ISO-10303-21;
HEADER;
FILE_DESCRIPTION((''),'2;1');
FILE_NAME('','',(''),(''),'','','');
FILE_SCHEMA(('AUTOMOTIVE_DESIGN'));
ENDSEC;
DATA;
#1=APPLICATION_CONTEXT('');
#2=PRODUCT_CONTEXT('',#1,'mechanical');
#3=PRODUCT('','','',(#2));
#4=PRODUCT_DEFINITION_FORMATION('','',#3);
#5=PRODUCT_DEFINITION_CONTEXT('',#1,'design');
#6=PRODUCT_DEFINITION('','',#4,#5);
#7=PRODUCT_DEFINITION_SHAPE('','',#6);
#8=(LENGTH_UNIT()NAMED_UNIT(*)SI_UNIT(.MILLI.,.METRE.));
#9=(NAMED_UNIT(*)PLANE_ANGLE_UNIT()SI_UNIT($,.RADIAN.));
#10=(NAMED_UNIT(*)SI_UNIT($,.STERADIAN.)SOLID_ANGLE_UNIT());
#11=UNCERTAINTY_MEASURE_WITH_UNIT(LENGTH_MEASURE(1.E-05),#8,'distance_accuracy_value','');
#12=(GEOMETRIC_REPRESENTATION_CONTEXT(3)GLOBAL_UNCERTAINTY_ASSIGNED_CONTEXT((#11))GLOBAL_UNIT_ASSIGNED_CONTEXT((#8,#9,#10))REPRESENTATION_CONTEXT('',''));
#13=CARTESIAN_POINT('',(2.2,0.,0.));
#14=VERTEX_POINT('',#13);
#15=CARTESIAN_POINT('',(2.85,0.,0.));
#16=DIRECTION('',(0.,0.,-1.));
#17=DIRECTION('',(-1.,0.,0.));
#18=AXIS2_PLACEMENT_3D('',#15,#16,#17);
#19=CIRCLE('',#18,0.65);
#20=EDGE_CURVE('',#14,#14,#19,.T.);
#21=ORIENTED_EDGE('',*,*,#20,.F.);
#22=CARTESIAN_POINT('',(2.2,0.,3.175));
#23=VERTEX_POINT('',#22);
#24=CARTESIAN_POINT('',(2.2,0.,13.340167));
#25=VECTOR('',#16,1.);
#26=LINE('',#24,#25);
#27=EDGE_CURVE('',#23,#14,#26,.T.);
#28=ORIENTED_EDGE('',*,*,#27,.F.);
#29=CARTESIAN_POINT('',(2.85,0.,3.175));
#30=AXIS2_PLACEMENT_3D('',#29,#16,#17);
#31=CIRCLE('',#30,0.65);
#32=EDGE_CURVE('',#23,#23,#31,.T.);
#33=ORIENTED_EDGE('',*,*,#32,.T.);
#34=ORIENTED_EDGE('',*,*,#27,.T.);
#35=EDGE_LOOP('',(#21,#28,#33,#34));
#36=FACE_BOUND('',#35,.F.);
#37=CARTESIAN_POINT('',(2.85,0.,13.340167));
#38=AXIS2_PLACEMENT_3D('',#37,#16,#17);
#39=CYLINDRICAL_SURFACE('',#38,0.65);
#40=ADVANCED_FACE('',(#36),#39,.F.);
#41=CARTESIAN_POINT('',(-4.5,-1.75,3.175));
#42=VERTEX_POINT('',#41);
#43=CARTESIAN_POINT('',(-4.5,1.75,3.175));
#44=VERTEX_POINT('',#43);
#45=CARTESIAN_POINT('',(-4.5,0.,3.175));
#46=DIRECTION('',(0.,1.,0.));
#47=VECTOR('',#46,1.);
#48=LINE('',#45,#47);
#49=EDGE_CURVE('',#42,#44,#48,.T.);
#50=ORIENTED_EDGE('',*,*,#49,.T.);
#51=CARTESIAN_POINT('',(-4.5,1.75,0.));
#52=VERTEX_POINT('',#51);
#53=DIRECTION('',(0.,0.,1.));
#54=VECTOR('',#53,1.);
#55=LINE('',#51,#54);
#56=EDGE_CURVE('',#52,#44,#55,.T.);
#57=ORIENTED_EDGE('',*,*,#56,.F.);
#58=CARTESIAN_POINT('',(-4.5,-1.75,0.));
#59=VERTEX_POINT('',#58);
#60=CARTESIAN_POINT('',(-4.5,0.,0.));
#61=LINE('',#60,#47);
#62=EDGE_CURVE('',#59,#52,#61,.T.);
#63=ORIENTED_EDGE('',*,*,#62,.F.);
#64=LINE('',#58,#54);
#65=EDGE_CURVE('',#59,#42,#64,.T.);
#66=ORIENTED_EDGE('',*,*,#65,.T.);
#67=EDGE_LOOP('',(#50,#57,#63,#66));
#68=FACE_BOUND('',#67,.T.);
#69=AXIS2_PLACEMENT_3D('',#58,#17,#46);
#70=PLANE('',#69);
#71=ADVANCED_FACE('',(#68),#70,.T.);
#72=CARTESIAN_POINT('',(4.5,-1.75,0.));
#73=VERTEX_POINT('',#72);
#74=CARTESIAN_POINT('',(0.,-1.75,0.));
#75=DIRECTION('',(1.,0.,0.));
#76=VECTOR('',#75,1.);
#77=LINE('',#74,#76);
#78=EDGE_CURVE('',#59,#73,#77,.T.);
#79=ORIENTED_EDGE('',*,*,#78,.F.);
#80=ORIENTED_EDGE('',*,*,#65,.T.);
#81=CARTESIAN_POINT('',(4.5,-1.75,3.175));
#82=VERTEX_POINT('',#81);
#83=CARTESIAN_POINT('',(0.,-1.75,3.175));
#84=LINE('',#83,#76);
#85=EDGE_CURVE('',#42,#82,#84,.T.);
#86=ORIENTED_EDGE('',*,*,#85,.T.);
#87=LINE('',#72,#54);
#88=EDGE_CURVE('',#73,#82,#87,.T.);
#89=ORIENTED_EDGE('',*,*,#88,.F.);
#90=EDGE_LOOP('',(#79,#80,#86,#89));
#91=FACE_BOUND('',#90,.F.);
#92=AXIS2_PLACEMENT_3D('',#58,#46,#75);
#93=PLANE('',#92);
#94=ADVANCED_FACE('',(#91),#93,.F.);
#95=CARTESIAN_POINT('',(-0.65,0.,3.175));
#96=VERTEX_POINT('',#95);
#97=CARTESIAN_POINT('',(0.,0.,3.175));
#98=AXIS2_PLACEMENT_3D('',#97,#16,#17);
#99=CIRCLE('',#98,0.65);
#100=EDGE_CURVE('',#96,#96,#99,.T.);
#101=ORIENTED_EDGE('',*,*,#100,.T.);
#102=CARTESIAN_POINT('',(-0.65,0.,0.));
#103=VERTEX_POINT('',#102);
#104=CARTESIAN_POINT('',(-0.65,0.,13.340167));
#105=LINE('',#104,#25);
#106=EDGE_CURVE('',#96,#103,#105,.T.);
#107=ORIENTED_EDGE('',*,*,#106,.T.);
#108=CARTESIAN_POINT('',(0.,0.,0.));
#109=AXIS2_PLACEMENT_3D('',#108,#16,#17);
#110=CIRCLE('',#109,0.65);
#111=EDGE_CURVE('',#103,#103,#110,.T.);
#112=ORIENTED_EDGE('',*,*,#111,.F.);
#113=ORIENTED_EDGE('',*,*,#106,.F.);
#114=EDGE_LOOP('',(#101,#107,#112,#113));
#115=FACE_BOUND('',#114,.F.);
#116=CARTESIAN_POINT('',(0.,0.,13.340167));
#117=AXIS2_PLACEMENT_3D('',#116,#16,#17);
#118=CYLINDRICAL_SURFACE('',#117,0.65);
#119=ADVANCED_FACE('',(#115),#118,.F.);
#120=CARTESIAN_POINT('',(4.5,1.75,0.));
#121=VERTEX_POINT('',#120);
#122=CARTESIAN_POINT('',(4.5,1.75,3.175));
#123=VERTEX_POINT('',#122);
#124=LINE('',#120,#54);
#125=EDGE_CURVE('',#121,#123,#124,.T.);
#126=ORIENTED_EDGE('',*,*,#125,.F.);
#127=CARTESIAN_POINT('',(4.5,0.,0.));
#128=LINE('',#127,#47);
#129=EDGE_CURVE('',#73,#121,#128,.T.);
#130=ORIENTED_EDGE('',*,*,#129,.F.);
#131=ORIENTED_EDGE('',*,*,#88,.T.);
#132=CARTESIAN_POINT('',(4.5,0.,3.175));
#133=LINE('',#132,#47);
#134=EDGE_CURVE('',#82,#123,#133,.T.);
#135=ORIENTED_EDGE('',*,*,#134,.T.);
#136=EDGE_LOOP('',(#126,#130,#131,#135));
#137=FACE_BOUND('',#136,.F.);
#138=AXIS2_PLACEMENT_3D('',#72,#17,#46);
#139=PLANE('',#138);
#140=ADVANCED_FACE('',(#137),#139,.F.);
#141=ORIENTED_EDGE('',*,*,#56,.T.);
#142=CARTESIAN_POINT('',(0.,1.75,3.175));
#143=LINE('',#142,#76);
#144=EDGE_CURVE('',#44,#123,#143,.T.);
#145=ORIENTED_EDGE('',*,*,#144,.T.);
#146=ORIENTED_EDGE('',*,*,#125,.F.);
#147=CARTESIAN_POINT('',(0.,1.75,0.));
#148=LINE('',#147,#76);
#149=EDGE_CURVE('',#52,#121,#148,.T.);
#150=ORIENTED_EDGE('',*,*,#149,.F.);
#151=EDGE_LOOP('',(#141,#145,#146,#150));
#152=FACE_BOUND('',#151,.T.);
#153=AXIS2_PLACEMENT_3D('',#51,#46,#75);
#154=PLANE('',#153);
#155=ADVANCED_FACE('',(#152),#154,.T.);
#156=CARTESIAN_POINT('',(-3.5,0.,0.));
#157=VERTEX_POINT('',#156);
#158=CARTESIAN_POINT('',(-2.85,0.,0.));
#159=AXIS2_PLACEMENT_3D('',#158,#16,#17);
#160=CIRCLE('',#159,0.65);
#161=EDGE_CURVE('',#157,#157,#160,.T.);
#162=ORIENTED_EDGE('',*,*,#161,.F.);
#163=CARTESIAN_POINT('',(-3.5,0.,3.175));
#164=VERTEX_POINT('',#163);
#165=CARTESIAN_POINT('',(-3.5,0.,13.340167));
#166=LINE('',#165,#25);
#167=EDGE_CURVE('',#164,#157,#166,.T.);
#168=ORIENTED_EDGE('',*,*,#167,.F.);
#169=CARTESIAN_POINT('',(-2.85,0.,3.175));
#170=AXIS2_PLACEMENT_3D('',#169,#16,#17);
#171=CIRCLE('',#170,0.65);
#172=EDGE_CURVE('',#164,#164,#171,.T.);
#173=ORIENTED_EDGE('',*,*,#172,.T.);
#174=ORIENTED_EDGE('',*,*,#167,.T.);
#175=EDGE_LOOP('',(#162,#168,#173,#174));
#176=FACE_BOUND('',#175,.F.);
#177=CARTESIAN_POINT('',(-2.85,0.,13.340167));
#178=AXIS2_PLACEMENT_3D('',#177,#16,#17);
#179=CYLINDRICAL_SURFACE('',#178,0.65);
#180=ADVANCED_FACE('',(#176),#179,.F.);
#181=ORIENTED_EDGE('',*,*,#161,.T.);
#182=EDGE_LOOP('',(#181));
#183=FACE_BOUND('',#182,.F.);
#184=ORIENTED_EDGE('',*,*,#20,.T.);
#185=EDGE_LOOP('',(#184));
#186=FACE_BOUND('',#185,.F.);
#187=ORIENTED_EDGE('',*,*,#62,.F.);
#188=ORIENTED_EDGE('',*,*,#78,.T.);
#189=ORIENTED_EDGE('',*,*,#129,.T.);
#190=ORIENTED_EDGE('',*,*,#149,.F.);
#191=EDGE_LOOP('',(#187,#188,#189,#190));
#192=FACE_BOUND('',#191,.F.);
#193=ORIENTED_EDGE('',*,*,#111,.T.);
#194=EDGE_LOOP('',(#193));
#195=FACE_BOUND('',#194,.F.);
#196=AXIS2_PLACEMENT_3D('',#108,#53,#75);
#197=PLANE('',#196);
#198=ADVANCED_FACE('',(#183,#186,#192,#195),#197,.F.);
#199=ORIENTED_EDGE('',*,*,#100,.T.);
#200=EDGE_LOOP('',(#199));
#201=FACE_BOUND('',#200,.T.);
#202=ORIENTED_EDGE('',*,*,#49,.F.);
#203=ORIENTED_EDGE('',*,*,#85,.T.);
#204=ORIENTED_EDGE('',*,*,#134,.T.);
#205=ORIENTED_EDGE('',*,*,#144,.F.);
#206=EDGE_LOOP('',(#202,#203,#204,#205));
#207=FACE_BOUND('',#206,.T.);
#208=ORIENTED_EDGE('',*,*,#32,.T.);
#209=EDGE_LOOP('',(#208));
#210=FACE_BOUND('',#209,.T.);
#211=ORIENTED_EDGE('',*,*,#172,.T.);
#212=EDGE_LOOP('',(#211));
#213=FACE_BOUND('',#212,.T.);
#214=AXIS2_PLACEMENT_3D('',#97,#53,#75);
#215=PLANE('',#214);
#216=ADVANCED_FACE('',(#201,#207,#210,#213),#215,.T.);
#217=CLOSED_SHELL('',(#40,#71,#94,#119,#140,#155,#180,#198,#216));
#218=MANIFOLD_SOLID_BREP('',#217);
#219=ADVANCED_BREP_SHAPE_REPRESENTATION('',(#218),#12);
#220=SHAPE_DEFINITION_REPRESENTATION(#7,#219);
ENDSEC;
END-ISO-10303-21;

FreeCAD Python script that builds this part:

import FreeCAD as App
import Part
import Sketcher
from FreeCAD import Vector
Q = App.Units.Quantity

doc = App.newDocument("Part")
params = doc.addObject("Spreadsheet::Sheet", "Params")
for row, (alias, value) in enumerate([
    ("sketch1_width", "9 mm"),
    ("sketch1_height", "3.5 mm"),
    ("pad1_length", "3.175 mm"),
    ("sketch2_diameter", "1.3 mm"),
    ("hole_diameter", "1.3 mm"),
], start=1):
    params.set(f"A{row}", alias)
    params.set(f"B{row}", "=" + value)
    params.setAlias(f"B{row}", alias)

body = doc.addObject("PartDesign::Body", "Body")

# Sketch on XY plane
sketch1 = doc.addObject("Sketcher::SketchObject", "Sketch")
body.addObject(sketch1)
sketch1.AttachmentSupport = (doc.XY_Plane, [""])
sketch1.MapMode = "FlatFace"
sketch1.addGeometry([
    Part.LineSegment(Vector(-4.5, 1.8, 0), Vector(-4.5, -1.8, 0)),
    Part.LineSegment(Vector(-4.5, -1.8, 0), Vector(4.5, -1.8, 0)),
    Part.LineSegment(Vector(4.5, -1.8, 0), Vector(4.5, 1.8, 0)),
    Part.LineSegment(Vector(4.5, 1.8, 0), Vector(-4.5, 1.8, 0)),
], False)
sketch1.addConstraint([
    Sketcher.Constraint("Coincident", 0, 2, 1, 1),
    Sketcher.Constraint("Coincident", 1, 2, 2, 1),
    Sketcher.Constraint("Coincident", 2, 2, 3, 1),
    Sketcher.Constraint("Coincident", 3, 2, 0, 1),
    Sketcher.Constraint("Vertical", 0),
    Sketcher.Constraint("Horizontal", 1),
    Sketcher.Constraint("Vertical", 2),
    Sketcher.Constraint("Horizontal", 3),
    Sketcher.Constraint("Symmetric", 0, 2, 2, 2, -1, 1),
    Sketcher.Constraint("DistanceX", 1, 1, 1, 2, Q("9 mm")),
    Sketcher.Constraint("DistanceY", 0, 2, 0, 1, Q("3.5 mm")),
])
sketch1.setExpression("Constraints[9]", "Params.sketch1_width")
sketch1.setExpression("Constraints[10]", "Params.sketch1_height")
pad1 = doc.addObject("PartDesign::Pad", "Pad")
body.addObject(pad1)
pad1.Profile = sketch1
pad1.setExpression("Length", "Params.pad1_length")

# Sketch on XY plane
sketch2 = doc.addObject("Sketcher::SketchObject", "Sketch001")
body.addObject(sketch2)
sketch2.AttachmentSupport = (doc.XY_Plane, [""])
sketch2.MapMode = "FlatFace"
sketch2.AttachmentOffset = App.Placement(Vector(0, 0, 3.175), App.Rotation())
sketch2.addGeometry([
    Part.Circle(Vector(0, 0, 0), Vector(0, 0, 1), 0.7),
    Part.Circle(Vector(-2.9, 0, 0), Vector(0, 0, 1), 0.7),
    Part.Circle(Vector(2.9, 0, 0), Vector(0, 0, 1), 0.7),
], False)
sketch2.addConstraint([
    Sketcher.Constraint("Coincident", 0, 3, -1, 1),
    Sketcher.Constraint("Equal", 0, 1),
    Sketcher.Constraint("Equal", 1, 2),
    Sketcher.Constraint("Symmetric", 1, 3, 2, 3, -1, 1),
    Sketcher.Constraint("PointOnObject", 1, 3, -1),
    Sketcher.Constraint("Diameter", 0, Q("1.3 mm")),
    Sketcher.Constraint("DistanceX", 1, 3, 2, 3, Q("5.7 mm")),
])
sketch2.setExpression("Constraints[5]", "Params.sketch2_diameter")
doc.recompute()
hole = doc.addObject("PartDesign::Hole", "Hole")
body.addObject(hole)
hole.Profile = sketch2
hole.ThreadType = "None"
hole.setExpression("Diameter", "Params.hole_diameter")
hole.DepthType = "ThroughAll"

doc.recompute()
